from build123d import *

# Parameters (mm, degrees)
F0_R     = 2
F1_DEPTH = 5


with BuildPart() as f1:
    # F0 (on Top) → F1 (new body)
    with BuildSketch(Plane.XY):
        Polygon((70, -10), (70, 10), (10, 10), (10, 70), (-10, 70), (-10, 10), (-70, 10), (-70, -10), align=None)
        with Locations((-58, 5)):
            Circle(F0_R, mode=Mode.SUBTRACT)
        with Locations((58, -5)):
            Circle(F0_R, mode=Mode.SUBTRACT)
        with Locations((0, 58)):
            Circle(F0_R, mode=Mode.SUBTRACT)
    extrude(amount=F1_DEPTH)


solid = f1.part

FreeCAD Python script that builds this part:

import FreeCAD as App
import Part
import Sketcher
from FreeCAD import Vector

doc = App.newDocument("Part")
body = doc.addObject("PartDesign::Body", "Body")

sketch1 = doc.addObject("Sketcher::SketchObject", "Sketch")
body.addObject(sketch1)
sketch1.AttachmentSupport = (doc.XY_Plane, [""])
sketch1.MapMode = "FlatFace"
sketch1.addGeometry([
    Part.LineSegment(Vector(70, -10, 0), Vector(70, 10, 0)),
    Part.LineSegment(Vector(70, 10, 0), Vector(10, 10, 0)),
    Part.LineSegment(Vector(10, 10, 0), Vector(10, 70, 0)),
    Part.LineSegment(Vector(10, 70, 0), Vector(-10, 70, 0)),
    Part.LineSegment(Vector(-10, 70, 0), Vector(-10, 10, 0)),
    Part.LineSegment(Vector(-10, 10, 0), Vector(-70, 10, 0)),
    Part.LineSegment(Vector(-70, 10, 0), Vector(-70, -10, 0)),
    Part.LineSegment(Vector(-70, -10, 0), Vector(70, -10, 0)),
    Part.Circle(Vector(-58, 5, 0), Vector(0, 0, 1), 2),
    Part.Circle(Vector(58, -5, 0), Vector(0, 0, 1), 2),
    Part.Circle(Vector(0, 58, 0), Vector(0, 0, 1), 2),
], False)
sketch1.addConstraint([
    Sketcher.Constraint("Coincident", 0, 2, 1, 1),
    Sketcher.Constraint("Coincident", 1, 2, 2, 1),
    Sketcher.Constraint("Coincident", 2, 2, 3, 1),
    Sketcher.Constraint("Coincident", 3, 2, 4, 1),
    Sketcher.Constraint("Coincident", 4, 2, 5, 1),
    Sketcher.Constraint("Coincident", 5, 2, 6, 1),
    Sketcher.Constraint("Coincident", 6, 2, 7, 1),
    Sketcher.Constraint("Coincident", 7, 2, 0, 1),
    Sketcher.Constraint("Vertical", 0),
    Sketcher.Constraint("Horizontal", 1),
    Sketcher.Constraint("Vertical", 2),
    Sketcher.Constraint("Horizontal", 3),
    Sketcher.Constraint("Vertical", 4),
    Sketcher.Constraint("Horizontal", 5),
    Sketcher.Constraint("Vertical", 6),
    Sketcher.Constraint("Horizontal", 7),
    Sketcher.Constraint("Equal", 8, 9),
    Sketcher.Constraint("Equal", 9, 10),
    Sketcher.Constraint("Symmetric", 8, 3, 9, 3, -1, 1),
    Sketcher.Constraint("Symmetric", 0, 2, 6, 2, -1, 1),
    Sketcher.Constraint("Symmetric", 1, 2, 4, 2, -2),
    Sketcher.Constraint("PointOnObject", 10, 3, -2),
    Sketcher.Constraint("Equal", 3, 0),
    Sketcher.Constraint("Equal", 5, 2),
    Sketcher.Constraint("Diameter", 8, 4.0),
    Sketcher.Constraint("DistanceX", 1, 2, 1, 1, 60.0),
    Sketcher.Constraint("DistanceX", 3, 2, 3, 1, 20.0),
    Sketcher.Constraint("DistanceX", 8, 3, -1, 1, 58.0),
    Sketcher.Constraint("DistanceY", -1, 1, 8, 3, 5.0),
    Sketcher.Constraint("DistanceY", -1, 1, 10, 3, 58.0),
])
pad1 = doc.addObject("PartDesign::Pad", "Pad")
body.addObject(pad1)
pad1.Profile = sketch1
pad1.Length = 5

doc.recompute()
